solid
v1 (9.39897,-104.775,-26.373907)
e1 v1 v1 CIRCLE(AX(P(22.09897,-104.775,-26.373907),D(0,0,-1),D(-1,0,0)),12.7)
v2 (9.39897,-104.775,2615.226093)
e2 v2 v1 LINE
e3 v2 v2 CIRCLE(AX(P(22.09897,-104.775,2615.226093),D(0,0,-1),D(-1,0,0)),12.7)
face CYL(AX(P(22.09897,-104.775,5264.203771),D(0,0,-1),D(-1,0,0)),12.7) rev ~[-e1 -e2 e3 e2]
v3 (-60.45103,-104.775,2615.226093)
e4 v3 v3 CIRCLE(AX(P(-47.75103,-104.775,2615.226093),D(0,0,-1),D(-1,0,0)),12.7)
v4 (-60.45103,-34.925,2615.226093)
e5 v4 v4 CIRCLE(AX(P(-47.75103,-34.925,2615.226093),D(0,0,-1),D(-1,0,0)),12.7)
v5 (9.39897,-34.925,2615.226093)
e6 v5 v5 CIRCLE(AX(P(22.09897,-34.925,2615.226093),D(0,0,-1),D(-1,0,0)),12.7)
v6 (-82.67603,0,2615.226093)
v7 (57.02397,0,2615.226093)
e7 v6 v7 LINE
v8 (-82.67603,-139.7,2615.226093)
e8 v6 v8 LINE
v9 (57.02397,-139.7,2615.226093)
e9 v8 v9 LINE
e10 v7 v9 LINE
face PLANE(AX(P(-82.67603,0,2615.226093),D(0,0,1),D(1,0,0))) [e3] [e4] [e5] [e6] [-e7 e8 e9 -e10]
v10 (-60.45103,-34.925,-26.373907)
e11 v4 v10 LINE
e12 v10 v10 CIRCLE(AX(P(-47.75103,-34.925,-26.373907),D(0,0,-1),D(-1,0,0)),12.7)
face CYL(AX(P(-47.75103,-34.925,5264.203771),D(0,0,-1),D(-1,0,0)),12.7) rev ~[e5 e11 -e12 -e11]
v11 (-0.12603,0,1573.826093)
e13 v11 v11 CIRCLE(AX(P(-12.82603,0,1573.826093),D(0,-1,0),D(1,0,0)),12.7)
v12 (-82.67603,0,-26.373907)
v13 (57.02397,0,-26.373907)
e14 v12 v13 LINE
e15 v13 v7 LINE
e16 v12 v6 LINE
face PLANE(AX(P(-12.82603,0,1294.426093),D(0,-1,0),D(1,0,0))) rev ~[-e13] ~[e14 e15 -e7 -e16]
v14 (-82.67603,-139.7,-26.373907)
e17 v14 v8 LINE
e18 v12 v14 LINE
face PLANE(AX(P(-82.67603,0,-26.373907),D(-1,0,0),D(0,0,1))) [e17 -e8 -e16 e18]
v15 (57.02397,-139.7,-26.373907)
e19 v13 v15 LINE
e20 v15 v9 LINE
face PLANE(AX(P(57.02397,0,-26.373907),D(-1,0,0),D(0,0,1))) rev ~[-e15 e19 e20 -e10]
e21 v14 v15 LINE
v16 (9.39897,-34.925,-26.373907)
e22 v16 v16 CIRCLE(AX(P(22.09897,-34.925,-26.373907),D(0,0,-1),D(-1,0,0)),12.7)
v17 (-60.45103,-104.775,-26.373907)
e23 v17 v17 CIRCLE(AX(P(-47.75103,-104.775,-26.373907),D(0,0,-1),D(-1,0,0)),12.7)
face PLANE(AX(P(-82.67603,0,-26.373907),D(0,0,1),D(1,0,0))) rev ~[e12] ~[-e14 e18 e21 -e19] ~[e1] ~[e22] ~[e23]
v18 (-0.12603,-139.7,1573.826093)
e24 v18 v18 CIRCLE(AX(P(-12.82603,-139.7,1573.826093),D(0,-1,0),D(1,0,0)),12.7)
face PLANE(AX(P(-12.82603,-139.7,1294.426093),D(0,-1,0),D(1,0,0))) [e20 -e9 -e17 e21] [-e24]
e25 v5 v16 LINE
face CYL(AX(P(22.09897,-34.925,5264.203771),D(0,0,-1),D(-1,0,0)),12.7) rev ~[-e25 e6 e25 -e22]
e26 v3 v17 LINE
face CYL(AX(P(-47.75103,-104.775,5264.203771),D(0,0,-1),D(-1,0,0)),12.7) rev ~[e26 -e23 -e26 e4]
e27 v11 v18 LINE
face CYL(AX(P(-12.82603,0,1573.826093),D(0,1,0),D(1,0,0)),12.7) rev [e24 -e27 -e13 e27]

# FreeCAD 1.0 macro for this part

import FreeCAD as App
import Part
import Sketcher
from FreeCAD import Vector
Q = App.Units.Quantity

doc = App.newDocument("Part")
body = doc.addObject("PartDesign::Body", "Body")

sketch1 = doc.addObject("Sketcher::SketchObject", "Sketch")
body.addObject(sketch1)
sketch1.AttachmentSupport = (doc.XZ_Plane, [""])
sketch1.MapMode = "FlatFace"
sketch1.addGeometry([
    Part.LineSegment(Vector(-83, 2615, 0), Vector(-83, -26, 0)),
    Part.LineSegment(Vector(-83, -26, 0), Vector(57, -26, 0)),
    Part.LineSegment(Vector(57, -26, 0), Vector(57, 2615, 0)),
    Part.LineSegment(Vector(57, 2615, 0), Vector(-83, 2615, 0)),
    Part.Circle(Vector(-13, 1574, 0), Vector(0, 0, 1), 13),
], False)
sketch1.addConstraint([
    Sketcher.Constraint("Coincident", 0, 2, 1, 1),
    Sketcher.Constraint("Coincident", 1, 2, 2, 1),
    Sketcher.Constraint("Coincident", 2, 2, 3, 1),
    Sketcher.Constraint("Coincident", 3, 2, 0, 1),
    Sketcher.Constraint("Vertical", 0),
    Sketcher.Constraint("Horizontal", 1),
    Sketcher.Constraint("Vertical", 2),
    Sketcher.Constraint("Horizontal", 3),
    Sketcher.Constraint("Diameter", 4, Q("1 in")),
    Sketcher.Constraint("DistanceY", 0, 2, 0, 1, Q("104 in")),
    Sketcher.Constraint("DistanceX", 1, 1, 1, 2, Q("5.5 in")),
    Sketcher.Constraint("DistanceY", 0, 2, 4, 3, Q("63 in")),
    Sketcher.Constraint("DistanceX", 0, 2, 4, 3, Q("2.75 in")),
    Sketcher.Constraint("DistanceX", 4, 3, -1, 1, 12.82603),
    Sketcher.Constraint("DistanceY", -1, 1, 4, 3, 1573.826093),
])
pad1 = doc.addObject("PartDesign::Pad", "Pad")
body.addObject(pad1)
pad1.Profile = sketch1
pad1.Length = Q("5.5 in")

sketch2 = doc.addObject("Sketcher::SketchObject", "Sketch001")
body.addObject(sketch2)
sketch2.AttachmentSupport = (doc.XY_Plane, [""])
sketch2.MapMode = "FlatFace"
sketch2.AttachmentOffset = App.Placement(Vector(0, 0, 2615.226093), App.Rotation())
sketch2.addGeometry([
    Part.Circle(Vector(-48, -35, 0), Vector(0, 0, 1), 13),
    Part.Circle(Vector(22, -35, 0), Vector(0, 0, 1), 13),
    Part.Circle(Vector(22, -105, 0), Vector(0, 0, 1), 13),
    Part.Circle(Vector(-48, -105, 0), Vector(0, 0, 1), 13),
], False)
sketch2.addConstraint([
    Sketcher.Constraint("Equal", 0, 1),
    Sketcher.Constraint("Equal", 1, 2),
    Sketcher.Constraint("Equal", 2, 3),
    Sketcher.Constraint("Horizontal", 0, 3, 1, 3),
    Sketcher.Constraint("Horizontal", 2, 3, 3, 3),
    Sketcher.Constraint("Vertical", 1, 3, 2, 3),
    Sketcher.Constraint("Vertical", 0, 3, 3, 3),
    Sketcher.Constraint("Diameter", 0, Q("1 in")),
    Sketcher.Constraint("DistanceX", 0, 3, 1, 3, Q("2.75 in")),
    Sketcher.Constraint("DistanceY", 2, 3, 1, 3, Q("2.75 in")),
    Sketcher.Constraint("DistanceY", 0, 3, -1, 1, Q("1.375 in")),
    Sketcher.Constraint("DistanceX", 0, 3, -1, 1, 47.75103),
])
doc.recompute()
hole = doc.addObject("PartDesign::Hole", "Hole")
body.addObject(hole)
hole.Profile = sketch2
hole.ThreadType = "None"
hole.Diameter = Q("1 in")
hole.DepthType = "ThroughAll"

doc.recompute()
